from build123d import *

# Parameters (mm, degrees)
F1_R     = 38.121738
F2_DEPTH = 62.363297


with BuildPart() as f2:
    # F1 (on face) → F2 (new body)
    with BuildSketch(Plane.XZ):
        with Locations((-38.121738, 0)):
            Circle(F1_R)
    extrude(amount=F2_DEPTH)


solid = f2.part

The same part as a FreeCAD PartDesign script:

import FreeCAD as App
import Part
import Sketcher
Q = App.Units.Quantity

doc = App.newDocument("Part")
body = doc.addObject("PartDesign::Body", "Body")

sketch1 = doc.addObject("Sketcher::SketchObject", "Sketch")
body.addObject(sketch1)
sketch1.AttachmentSupport = (doc.XZ_Plane, [""])
sketch1.MapMode = "FlatFace"
sketch1.addGeometry(Part.Circle(App.Vector(-38.121738, 0, 0), App.Vector(0, 0, 1), 38.121738), False)
sketch1.addConstraint(Sketcher.Constraint("PointOnObject", 0, 3, -1))
sketch1.addConstraint(Sketcher.Constraint("Diameter", 0, Q("76.243476 mm")))
sketch1.addConstraint(Sketcher.Constraint("DistanceX", 0, 3, -1, 1, Q("38.121738 mm")))
pad1 = doc.addObject("PartDesign::Pad", "Pad")
body.addObject(pad1)
pad1.Profile = sketch1
pad1.Length = 62.363297

doc.recompute()
